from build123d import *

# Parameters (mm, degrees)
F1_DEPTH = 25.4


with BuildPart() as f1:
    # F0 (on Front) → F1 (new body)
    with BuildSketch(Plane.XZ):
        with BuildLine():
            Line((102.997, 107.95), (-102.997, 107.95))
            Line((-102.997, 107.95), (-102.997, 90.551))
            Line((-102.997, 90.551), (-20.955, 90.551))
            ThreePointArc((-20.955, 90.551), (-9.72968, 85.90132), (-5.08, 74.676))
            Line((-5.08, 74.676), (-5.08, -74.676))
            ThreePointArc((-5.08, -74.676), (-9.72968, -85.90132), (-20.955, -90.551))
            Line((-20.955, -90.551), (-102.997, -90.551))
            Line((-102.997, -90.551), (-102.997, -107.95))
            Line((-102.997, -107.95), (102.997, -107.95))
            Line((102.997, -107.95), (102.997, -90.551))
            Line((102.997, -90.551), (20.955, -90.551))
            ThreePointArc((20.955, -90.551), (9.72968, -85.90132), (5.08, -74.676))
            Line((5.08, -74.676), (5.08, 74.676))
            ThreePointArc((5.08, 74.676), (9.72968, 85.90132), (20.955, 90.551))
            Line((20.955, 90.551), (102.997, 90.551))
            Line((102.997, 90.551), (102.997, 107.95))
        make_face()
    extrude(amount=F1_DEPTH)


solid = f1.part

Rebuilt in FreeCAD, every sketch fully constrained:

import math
import FreeCAD as App
import Part
import Sketcher
from FreeCAD import Vector
Q = App.Units.Quantity

doc = App.newDocument("Part")
body = doc.addObject("PartDesign::Body", "Body")

sketch1 = doc.addObject("Sketcher::SketchObject", "Sketch")
body.addObject(sketch1)
sketch1.AttachmentSupport = (doc.XZ_Plane, [""])
sketch1.MapMode = "FlatFace"
sketch1.addGeometry([
    Part.LineSegment(Vector(102.997, 107.95, 0), Vector(-102.997, 107.95, 0)),
    Part.LineSegment(Vector(-102.997, 107.95, 0), Vector(-102.997, 90.551, 0)),
    Part.LineSegment(Vector(-102.997, 90.551, 0), Vector(-20.955, 90.551, 0)),
    Part.ArcOfCircle(Part.Circle(Vector(-20.955001, 74.675999, 0), Vector(0, 0, 1), 15.875001), math.radians(0.000002), math.radians(89.999998)),
    Part.LineSegment(Vector(-5.08, 74.676, 0), Vector(-5.08, -74.676, 0)),
    Part.ArcOfCircle(Part.Circle(Vector(-20.955001, -74.675999, 0), Vector(0, 0, 1), 15.875001), math.radians(-89.999998), math.radians(-0.000002)),
    Part.LineSegment(Vector(-20.955, -90.551, 0), Vector(-102.997, -90.551, 0)),
    Part.LineSegment(Vector(-102.997, -90.551, 0), Vector(-102.997, -107.95, 0)),
    Part.LineSegment(Vector(-102.997, -107.95, 0), Vector(102.997, -107.95, 0)),
    Part.LineSegment(Vector(102.997, -107.95, 0), Vector(102.997, -90.551, 0)),
    Part.LineSegment(Vector(102.997, -90.551, 0), Vector(20.955, -90.551, 0)),
    Part.ArcOfCircle(Part.Circle(Vector(20.955001, -74.675999, 0), Vector(0, 0, 1), 15.875001), math.radians(-179.999998), math.radians(-90.000002)),
    Part.LineSegment(Vector(5.08, -74.676, 0), Vector(5.08, 74.676, 0)),
    Part.ArcOfCircle(Part.Circle(Vector(20.955001, 74.675999, 0), Vector(0, 0, 1), 15.875001), math.radians(90.000002), math.radians(179.999998)),
    Part.LineSegment(Vector(20.955, 90.551, 0), Vector(102.997, 90.551, 0)),
    Part.LineSegment(Vector(102.997, 90.551, 0), Vector(102.997, 107.95, 0)),
], False)
sketch1.addConstraint([
    Sketcher.Constraint("Coincident", 0, 2, 1, 1),
    Sketcher.Constraint("Coincident", 1, 2, 2, 1),
    Sketcher.Constraint("Tangent", 2, 2, 3, 2),
    Sketcher.Constraint("Tangent", 3, 1, 4, 1),
    Sketcher.Constraint("Tangent", 4, 2, 5, 2),
    Sketcher.Constraint("Tangent", 5, 1, 6, 1),
    Sketcher.Constraint("Coincident", 6, 2, 7, 1),
    Sketcher.Constraint("Coincident", 7, 2, 8, 1),
    Sketcher.Constraint("Coincident", 8, 2, 9, 1),
    Sketcher.Constraint("Coincident", 9, 2, 10, 1),
    Sketcher.Constraint("Tangent", 10, 2, 11, 2),
    Sketcher.Constraint("Tangent", 11, 1, 12, 1),
    Sketcher.Constraint("Tangent", 12, 2, 13, 2),
    Sketcher.Constraint("Tangent", 13, 1, 14, 1),
    Sketcher.Constraint("Coincident", 14, 2, 15, 1),
    Sketcher.Constraint("Coincident", 15, 2, 0, 1),
    Sketcher.Constraint("Horizontal", 0),
    Sketcher.Constraint("Vertical", 1),
    Sketcher.Constraint("Horizontal", 2),
    Sketcher.Constraint("Vertical", 4),
    Sketcher.Constraint("Horizontal", 6),
    Sketcher.Constraint("Vertical", 7),
    Sketcher.Constraint("Horizontal", 8),
    Sketcher.Constraint("Vertical", 9),
    Sketcher.Constraint("Horizontal", 10),
    Sketcher.Constraint("Vertical", 12),
    Sketcher.Constraint("Horizontal", 14),
    Sketcher.Constraint("Vertical", 15),
    Sketcher.Constraint("Equal", 3, 5),
    Sketcher.Constraint("Equal", 5, 11),
    Sketcher.Constraint("Equal", 11, 13),
    Sketcher.Constraint("Symmetric", 3, 3, 11, 3, -1, 1),
    Sketcher.Constraint("Symmetric", 0, 2, 8, 2, -1, 1),
    Sketcher.Constraint("Symmetric", 6, 2, 14, 2, -1, 1),
    Sketcher.Constraint("Symmetric", 6, 2, 9, 2, -2),
    Sketcher.Constraint("Radius", 3, Q("0.625 in")),
    Sketcher.Constraint("DistanceX", 0, 2, 0, 1, Q("8.11 in")),
    Sketcher.Constraint("DistanceX", 2, 1, 2, 2, Q("3.23 in")),
    Sketcher.Constraint("DistanceY", 4, 2, 4, 1, Q("5.88 in")),
    Sketcher.Constraint("DistanceY", 1, 2, 1, 1, Q("0.685 in")),
])
pad1 = doc.addObject("PartDesign::Pad", "Pad")
body.addObject(pad1)
pad1.Profile = sketch1
pad1.Length = Q("1 in")

doc.recompute()
